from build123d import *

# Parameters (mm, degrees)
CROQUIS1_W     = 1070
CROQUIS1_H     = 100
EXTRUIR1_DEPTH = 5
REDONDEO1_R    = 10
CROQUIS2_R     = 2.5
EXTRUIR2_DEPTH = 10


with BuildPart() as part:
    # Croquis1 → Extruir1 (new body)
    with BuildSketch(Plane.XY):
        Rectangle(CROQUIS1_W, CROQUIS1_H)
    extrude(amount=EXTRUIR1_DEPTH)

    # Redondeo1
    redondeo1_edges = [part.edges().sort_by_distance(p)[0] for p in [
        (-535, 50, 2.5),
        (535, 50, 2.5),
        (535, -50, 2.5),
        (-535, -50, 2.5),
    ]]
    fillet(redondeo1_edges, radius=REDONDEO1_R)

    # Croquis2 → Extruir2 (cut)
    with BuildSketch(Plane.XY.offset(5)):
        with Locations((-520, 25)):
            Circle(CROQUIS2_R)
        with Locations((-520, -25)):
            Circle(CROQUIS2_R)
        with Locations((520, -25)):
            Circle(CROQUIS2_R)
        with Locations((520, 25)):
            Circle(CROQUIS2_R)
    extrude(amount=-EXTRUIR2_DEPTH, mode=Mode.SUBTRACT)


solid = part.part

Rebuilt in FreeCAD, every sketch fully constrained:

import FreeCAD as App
import Part
import Sketcher


def edges_at(feature, points):
    """Names of the edges that pass closest to the given points."""
    edges = feature.Shape.Edges
    near = lambda p: min(range(len(edges)), key=lambda i: edges[i].distToShape(Part.Vertex(*p))[0])
    return sorted({f"Edge{near(p) + 1}" for p in points})

doc = App.newDocument("Part")
body = doc.addObject("PartDesign::Body", "Body")

sketch1 = doc.addObject("Sketcher::SketchObject", "Sketch")
body.addObject(sketch1)
sketch1.AttachmentSupport = (doc.XY_Plane, [""])
sketch1.MapMode = "FlatFace"
sketch1.addGeometry([
    Part.LineSegment(App.Vector(-535, 50, 0), App.Vector(-535, -50, 0)),
    Part.LineSegment(App.Vector(-535, -50, 0), App.Vector(535, -50, 0)),
    Part.LineSegment(App.Vector(535, -50, 0), App.Vector(535, 50, 0)),
    Part.LineSegment(App.Vector(535, 50, 0), App.Vector(-535, 50, 0)),
], False)
sketch1.addConstraint([
    Sketcher.Constraint("Coincident", 0, 2, 1, 1),
    Sketcher.Constraint("Coincident", 1, 2, 2, 1),
    Sketcher.Constraint("Coincident", 2, 2, 3, 1),
    Sketcher.Constraint("Coincident", 3, 2, 0, 1),
    Sketcher.Constraint("Vertical", 0),
    Sketcher.Constraint("Horizontal", 1),
    Sketcher.Constraint("Vertical", 2),
    Sketcher.Constraint("Horizontal", 3),
    Sketcher.Constraint("Symmetric", 0, 2, 2, 2, -1, 1),
    Sketcher.Constraint("DistanceX", 1, 1, 1, 2, 1070.0),
    Sketcher.Constraint("DistanceY", 0, 2, 0, 1, 100.0),
])
pad1 = doc.addObject("PartDesign::Pad", "Pad")
body.addObject(pad1)
pad1.Profile = sketch1
pad1.Length = 5
doc.recompute()

fillet = doc.addObject("PartDesign::Fillet", "Fillet")
body.addObject(fillet)
fillet.Base = (pad1, edges_at(pad1, [
    (-535, 50, 2.5),
    (535, 50, 2.5),
    (535, -50, 2.5),
    (-535, -50, 2.5),
]))
fillet.Radius = 10

sketch2 = doc.addObject("Sketcher::SketchObject", "Sketch001")
body.addObject(sketch2)
sketch2.AttachmentSupport = (doc.XY_Plane, [""])
sketch2.MapMode = "FlatFace"
sketch2.AttachmentOffset = App.Placement(App.Vector(0, 0, 5), App.Rotation())
sketch2.addGeometry([
    Part.Circle(App.Vector(-520, 25, 0), App.Vector(0, 0, 1), 2.5),
    Part.Circle(App.Vector(-520, -25, 0), App.Vector(0, 0, 1), 2.5),
    Part.Circle(App.Vector(520, -25, 0), App.Vector(0, 0, 1), 2.5),
    Part.Circle(App.Vector(520, 25, 0), App.Vector(0, 0, 1), 2.5),
], False)
sketch2.addConstraint([
    Sketcher.Constraint("Equal", 0, 1),
    Sketcher.Constraint("Equal", 1, 2),
    Sketcher.Constraint("Equal", 2, 3),
    Sketcher.Constraint("Symmetric", 0, 3, 2, 3, -1, 1),
    Sketcher.Constraint("Symmetric", 1, 3, 3, 3, -1, 1),
    Sketcher.Constraint("Symmetric", 1, 3, 2, 3, -2),
    Sketcher.Constraint("Diameter", 0, 5.0),
    Sketcher.Constraint("DistanceX", 0, 3, -1, 1, 520.0),
    Sketcher.Constraint("DistanceY", -1, 1, 0, 3, 25.0),
])
pocket1 = doc.addObject("PartDesign::Pocket", "Pocket")
body.addObject(pocket1)
pocket1.Profile = sketch2
pocket1.Length = 10

doc.recompute()
